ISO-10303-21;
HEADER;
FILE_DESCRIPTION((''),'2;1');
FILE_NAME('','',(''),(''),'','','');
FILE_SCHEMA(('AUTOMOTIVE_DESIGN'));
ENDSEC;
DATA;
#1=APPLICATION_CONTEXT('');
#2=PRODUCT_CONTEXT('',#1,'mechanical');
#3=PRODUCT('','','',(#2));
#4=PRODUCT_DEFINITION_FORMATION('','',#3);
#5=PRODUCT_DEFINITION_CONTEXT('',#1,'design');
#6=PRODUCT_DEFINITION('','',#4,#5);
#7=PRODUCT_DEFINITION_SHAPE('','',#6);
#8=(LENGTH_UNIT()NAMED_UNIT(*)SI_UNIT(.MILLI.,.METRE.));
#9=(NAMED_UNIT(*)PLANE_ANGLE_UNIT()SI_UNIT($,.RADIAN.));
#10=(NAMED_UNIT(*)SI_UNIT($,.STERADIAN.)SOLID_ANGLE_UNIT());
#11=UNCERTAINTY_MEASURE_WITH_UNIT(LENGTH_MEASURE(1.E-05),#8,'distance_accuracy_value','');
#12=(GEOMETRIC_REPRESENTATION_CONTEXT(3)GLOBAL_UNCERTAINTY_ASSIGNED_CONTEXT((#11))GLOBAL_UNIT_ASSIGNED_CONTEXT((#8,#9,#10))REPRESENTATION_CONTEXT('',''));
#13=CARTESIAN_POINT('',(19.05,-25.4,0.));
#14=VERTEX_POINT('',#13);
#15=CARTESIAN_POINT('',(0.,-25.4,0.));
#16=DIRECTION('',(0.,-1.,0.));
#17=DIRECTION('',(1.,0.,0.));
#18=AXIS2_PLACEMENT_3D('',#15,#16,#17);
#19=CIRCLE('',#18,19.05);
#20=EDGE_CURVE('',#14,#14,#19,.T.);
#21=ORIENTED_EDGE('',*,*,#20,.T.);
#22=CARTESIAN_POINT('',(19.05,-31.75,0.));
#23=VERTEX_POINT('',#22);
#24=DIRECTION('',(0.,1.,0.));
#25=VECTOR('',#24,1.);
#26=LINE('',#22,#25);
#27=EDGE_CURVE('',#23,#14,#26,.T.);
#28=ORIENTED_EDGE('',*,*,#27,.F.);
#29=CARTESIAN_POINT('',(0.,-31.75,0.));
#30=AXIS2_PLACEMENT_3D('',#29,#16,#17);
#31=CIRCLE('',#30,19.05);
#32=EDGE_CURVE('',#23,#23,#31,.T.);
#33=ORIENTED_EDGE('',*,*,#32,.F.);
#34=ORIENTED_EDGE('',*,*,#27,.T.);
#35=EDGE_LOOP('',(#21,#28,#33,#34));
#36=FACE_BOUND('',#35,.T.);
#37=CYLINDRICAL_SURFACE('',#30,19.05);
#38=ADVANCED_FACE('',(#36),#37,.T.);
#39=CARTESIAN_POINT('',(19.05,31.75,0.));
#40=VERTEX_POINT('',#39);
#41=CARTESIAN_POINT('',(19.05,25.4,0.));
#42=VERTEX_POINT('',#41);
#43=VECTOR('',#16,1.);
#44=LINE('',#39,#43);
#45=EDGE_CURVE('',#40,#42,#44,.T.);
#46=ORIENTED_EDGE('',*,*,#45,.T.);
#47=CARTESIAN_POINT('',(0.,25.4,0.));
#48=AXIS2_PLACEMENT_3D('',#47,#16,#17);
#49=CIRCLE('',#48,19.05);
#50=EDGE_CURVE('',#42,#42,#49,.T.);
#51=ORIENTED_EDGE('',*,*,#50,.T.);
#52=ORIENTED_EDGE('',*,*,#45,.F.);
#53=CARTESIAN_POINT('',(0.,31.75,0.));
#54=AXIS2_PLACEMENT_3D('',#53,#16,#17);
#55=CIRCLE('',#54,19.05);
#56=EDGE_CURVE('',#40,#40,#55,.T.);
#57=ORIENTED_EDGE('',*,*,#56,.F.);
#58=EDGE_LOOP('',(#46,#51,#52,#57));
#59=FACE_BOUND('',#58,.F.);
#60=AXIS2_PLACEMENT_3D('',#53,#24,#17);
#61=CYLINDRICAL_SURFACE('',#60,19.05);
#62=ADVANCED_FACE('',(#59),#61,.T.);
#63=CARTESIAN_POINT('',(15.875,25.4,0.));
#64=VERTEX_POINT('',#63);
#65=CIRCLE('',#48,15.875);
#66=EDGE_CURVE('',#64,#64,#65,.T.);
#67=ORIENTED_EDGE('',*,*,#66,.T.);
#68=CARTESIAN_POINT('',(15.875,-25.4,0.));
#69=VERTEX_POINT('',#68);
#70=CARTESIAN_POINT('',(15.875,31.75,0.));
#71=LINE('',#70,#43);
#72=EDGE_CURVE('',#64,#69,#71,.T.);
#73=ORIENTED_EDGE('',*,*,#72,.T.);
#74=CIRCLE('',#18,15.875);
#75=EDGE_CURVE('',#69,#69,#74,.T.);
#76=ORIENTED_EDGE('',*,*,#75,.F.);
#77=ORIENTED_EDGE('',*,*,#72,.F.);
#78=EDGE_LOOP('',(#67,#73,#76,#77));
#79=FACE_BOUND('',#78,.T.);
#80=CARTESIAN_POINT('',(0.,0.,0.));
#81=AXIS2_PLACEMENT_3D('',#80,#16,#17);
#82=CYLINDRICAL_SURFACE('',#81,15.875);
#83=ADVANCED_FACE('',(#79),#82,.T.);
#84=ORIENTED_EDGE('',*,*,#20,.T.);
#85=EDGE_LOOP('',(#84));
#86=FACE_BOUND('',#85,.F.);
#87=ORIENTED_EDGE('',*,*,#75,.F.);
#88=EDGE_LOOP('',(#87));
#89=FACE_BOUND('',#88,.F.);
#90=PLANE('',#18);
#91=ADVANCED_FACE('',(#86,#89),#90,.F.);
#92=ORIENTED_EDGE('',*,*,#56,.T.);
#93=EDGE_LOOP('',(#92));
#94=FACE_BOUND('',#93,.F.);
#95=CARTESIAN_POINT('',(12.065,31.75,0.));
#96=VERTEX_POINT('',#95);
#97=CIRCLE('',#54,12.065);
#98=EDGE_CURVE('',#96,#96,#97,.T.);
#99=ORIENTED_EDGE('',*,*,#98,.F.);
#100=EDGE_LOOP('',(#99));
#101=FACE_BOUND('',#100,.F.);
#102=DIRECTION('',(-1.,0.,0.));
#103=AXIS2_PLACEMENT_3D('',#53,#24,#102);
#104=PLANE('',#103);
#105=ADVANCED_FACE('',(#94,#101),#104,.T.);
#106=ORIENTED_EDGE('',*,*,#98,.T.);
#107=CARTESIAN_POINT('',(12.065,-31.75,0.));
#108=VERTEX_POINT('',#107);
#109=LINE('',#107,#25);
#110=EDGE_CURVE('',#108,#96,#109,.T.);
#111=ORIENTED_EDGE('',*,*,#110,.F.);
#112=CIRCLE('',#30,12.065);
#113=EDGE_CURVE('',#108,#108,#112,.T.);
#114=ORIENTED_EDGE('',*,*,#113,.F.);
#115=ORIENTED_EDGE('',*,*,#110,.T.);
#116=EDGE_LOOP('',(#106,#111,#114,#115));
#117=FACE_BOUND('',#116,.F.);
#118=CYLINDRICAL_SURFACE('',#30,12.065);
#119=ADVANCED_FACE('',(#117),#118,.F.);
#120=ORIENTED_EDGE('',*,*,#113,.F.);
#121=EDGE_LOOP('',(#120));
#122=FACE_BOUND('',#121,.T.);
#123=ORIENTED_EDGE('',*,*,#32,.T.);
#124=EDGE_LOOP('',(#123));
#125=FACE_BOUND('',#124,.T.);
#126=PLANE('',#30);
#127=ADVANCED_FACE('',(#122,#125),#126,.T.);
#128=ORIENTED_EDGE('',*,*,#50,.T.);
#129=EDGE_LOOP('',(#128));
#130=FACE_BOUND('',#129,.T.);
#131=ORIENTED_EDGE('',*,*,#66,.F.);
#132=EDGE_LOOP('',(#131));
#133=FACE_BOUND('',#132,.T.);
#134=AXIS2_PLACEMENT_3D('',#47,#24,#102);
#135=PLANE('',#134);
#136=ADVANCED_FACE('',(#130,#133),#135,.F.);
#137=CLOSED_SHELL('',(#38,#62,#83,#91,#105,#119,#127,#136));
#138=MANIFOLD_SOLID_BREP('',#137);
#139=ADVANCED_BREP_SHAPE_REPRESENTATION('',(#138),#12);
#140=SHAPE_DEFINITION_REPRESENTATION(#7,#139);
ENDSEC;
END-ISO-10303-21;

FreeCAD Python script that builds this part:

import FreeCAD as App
import Part
import Sketcher
from FreeCAD import Vector
Q = App.Units.Quantity

doc = App.newDocument("Part")
params = doc.addObject("Spreadsheet::Sheet", "Params")
for row, (alias, value) in enumerate([
    ("sketch1_diameter", "1.25 in"),
    ("pad1_length", "2.5 in"),
    ("sketch2_diameter", "1.5 in"),
    ("sketch2_diameter2", "1.25 in"),
    ("pad2_length", "0.25 in"),
    ("sketch3_diameter", "0.95 in"),
], start=1):
    params.set(f"A{row}", alias)
    params.set(f"B{row}", "=" + value)
    params.setAlias(f"B{row}", alias)

body = doc.addObject("PartDesign::Body", "Body")

# Sketch on XZ plane
sketch1 = body.newObject("Sketcher::SketchObject", "Sketch")
sketch1.AttachmentSupport = (doc.getObject("XZ_Plane"), [""])
sketch1.MapMode = "FlatFace"
sketch1.addGeometry(Part.Circle(Vector(0, 0, 0), Vector(0, 0, 1), 16), False)
sketch1.addConstraint([
    Sketcher.Constraint("Coincident", 0, 3, -1, 1),
    Sketcher.Constraint("Diameter", 0, Q("1.25 in")),
])
sketch1.setExpression("Constraints[1]", "Params.sketch1_diameter")
pad1 = body.newObject("PartDesign::Pad", "Pad")
pad1.Profile = sketch1
pad1.setExpression("Length", "Params.pad1_length")
pad1.Midplane = True

# Sketch on XZ plane
sketch2 = body.newObject("Sketcher::SketchObject", "Sketch001")
sketch2.AttachmentSupport = (doc.getObject("XZ_Plane"), [""])
sketch2.MapMode = "FlatFace"
sketch2.AttachmentOffset = App.Placement(Vector(0, 0, 1.25 * 25.4), App.Rotation())
sketch2.addGeometry([
    Part.Circle(Vector(0, 0, 0), Vector(0, 0, 1), 19),
    Part.Circle(Vector(0, 0, 0), Vector(0, 0, 1), 16),
], False)
sketch2.addConstraint([
    Sketcher.Constraint("Coincident", 0, 3, -1, 1),
    Sketcher.Constraint("Coincident", 1, 3, -1, 1),
    Sketcher.Constraint("Diameter", 0, Q("1.5 in")),
    Sketcher.Constraint("Diameter", 1, Q("1.25 in")),
])
sketch2.setExpression("Constraints[2]", "Params.sketch2_diameter")
sketch2.setExpression("Constraints[3]", "Params.sketch2_diameter2")
pad2 = body.newObject("PartDesign::Pad", "Pad001")
pad2.Profile = sketch2
pad2.setExpression("Length", "Params.pad2_length")
pad2.Reversed = True
body2 = doc.addObject("PartDesign::Body", "Body001")
doc.recompute()

body2.BaseFeature = body
doc.recompute()

mirroring = doc.addObject("Part::Mirroring", "Mirroring")
mirroring.Source = body
mirroring.Base = Vector(0, 0, 0)
mirroring.Normal = Vector(0, -1, 0)
body3 = doc.addObject("PartDesign::Body", "Body002")
body3.BaseFeature = mirroring
boolean = body2.newObject("PartDesign::Boolean", "Boolean")
boolean.Type = "Fuse"
boolean.addObjects([body3])
doc.recompute()

# Sketch on XZ plane
sketch3 = body2.newObject("Sketcher::SketchObject", "Sketch002")
sketch3.AttachmentSupport = (doc.getObject("XZ_Plane001"), [""])
sketch3.MapMode = "FlatFace"
sketch3.AttachmentOffset = App.Placement(Vector(0, 0, 1.25 * 25.4), App.Rotation())
sketch3.addGeometry(Part.Circle(Vector(0, 0, 0), Vector(0, 0, 1), 12), False)
sketch3.addConstraint([
    Sketcher.Constraint("Coincident", 0, 3, -1, 1),
    Sketcher.Constraint("Diameter", 0, Q("0.95 in")),
])
sketch3.setExpression("Constraints[1]", "Params.sketch3_diameter")
pocket1 = body2.newObject("PartDesign::Pocket", "Pocket")
pocket1.Profile = sketch3
pocket1.Type = "ThroughAll"
mirroring.Visibility = False

doc.recompute()
